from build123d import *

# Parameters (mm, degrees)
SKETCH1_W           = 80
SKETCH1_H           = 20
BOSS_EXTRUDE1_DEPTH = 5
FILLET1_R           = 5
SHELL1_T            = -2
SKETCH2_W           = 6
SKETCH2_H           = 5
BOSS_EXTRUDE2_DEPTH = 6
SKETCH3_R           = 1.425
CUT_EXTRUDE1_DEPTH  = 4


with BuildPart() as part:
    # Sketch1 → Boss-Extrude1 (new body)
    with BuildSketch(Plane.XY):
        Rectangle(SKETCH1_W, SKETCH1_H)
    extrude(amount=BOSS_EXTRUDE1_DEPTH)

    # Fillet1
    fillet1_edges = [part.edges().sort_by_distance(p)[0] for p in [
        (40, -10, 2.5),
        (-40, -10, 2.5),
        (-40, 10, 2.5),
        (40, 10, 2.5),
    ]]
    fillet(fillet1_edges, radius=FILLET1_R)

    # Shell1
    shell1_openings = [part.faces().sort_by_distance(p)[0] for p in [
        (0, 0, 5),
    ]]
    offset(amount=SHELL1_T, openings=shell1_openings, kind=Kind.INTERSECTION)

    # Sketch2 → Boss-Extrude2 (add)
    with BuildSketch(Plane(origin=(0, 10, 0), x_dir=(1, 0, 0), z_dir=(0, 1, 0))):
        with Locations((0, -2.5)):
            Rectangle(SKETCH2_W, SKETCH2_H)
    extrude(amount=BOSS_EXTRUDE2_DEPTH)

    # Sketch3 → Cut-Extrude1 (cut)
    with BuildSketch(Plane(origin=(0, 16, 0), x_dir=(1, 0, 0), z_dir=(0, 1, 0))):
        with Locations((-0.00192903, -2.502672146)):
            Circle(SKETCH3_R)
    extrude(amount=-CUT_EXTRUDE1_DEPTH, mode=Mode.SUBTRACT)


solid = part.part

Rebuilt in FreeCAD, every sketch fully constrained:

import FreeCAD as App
import Part
import Sketcher


def edges_at(feature, points):
    """Names of the edges that pass closest to the given points."""
    edges = feature.Shape.Edges
    near = lambda p: min(range(len(edges)), key=lambda i: edges[i].distToShape(Part.Vertex(*p))[0])
    return sorted({f"Edge{near(p) + 1}" for p in points})


def faces_at(feature, points):
    """Names of the faces that lie closest to the given points."""
    faces = feature.Shape.Faces
    near = lambda p: min(range(len(faces)), key=lambda i: faces[i].distToShape(Part.Vertex(*p))[0])
    return sorted({f"Face{near(p) + 1}" for p in points})


def add_polygon(sketch, points):
    """Adds a closed chain of lines whose ends are joined by coincident constraints."""
    first, n = sketch.GeometryCount, len(points)
    for a, b in zip(points, points[1:] + points[:1]):
        sketch.addGeometry(Part.LineSegment(App.Vector(*a, 0), App.Vector(*b, 0)), False)
    for i in range(n):
        sketch.addConstraint(Sketcher.Constraint("Coincident", first + i, 2, first + (i + 1) % n, 1))

doc = App.newDocument("Part")
body = doc.addObject("PartDesign::Body", "Body")

# Sketch on XY plane
sketch1 = doc.addObject("Sketcher::SketchObject", "Sketch")
body.addObject(sketch1)
sketch1.AttachmentSupport = (doc.XY_Plane, [""])
sketch1.MapMode = "FlatFace"
add_polygon(sketch1, [(-40, 10), (-40, -10), (40, -10), (40, 10)])  # lines 0-3
sketch1.addConstraint([
    Sketcher.Constraint("Vertical", 0),
    Sketcher.Constraint("Horizontal", 1),
    Sketcher.Constraint("Vertical", 2),
    Sketcher.Constraint("Horizontal", 3),
    Sketcher.Constraint("Symmetric", 0, 2, 2, 2, -1, 1),
    Sketcher.Constraint("DistanceX", 1, 1, 1, 2, 80.0),
    Sketcher.Constraint("DistanceY", 0, 2, 0, 1, 20.0),
])
pad1 = doc.addObject("PartDesign::Pad", "Pad")
body.addObject(pad1)
pad1.Profile = sketch1
pad1.Length = 5
doc.recompute()

fillet = doc.addObject("PartDesign::Fillet", "Fillet")
body.addObject(fillet)
fillet.Base = (pad1, edges_at(pad1, [
    (40, -10, 2.5),
    (-40, -10, 2.5),
    (-40, 10, 2.5),
    (40, 10, 2.5),
]))
fillet.Radius = 5
doc.recompute()

thickness = doc.addObject("PartDesign::Thickness", "Thickness")
body.addObject(thickness)
thickness.Base = (fillet, faces_at(fillet, [(0, 0, 5)]))
thickness.Value = 2
thickness.Reversed = True
thickness.Join = "Intersection"

# Sketch on XZ plane
sketch2 = doc.addObject("Sketcher::SketchObject", "Sketch001")
body.addObject(sketch2)
sketch2.AttachmentSupport = (doc.XZ_Plane, [""])
sketch2.MapMode = "FlatFace"
sketch2.AttachmentOffset = App.Placement(App.Vector(0, 0, -10), App.Rotation())
add_polygon(sketch2, [(-3, 0), (-3, 5), (3, 5), (3, 0)])  # lines 0-3
sketch2.addConstraint([
    Sketcher.Constraint("Vertical", 0),
    Sketcher.Constraint("Horizontal", 1),
    Sketcher.Constraint("Vertical", 2),
    Sketcher.Constraint("Horizontal", 3),
    Sketcher.Constraint("Symmetric", 2, 2, 3, 2, -1, 1),
    Sketcher.Constraint("DistanceX", 1, 1, 1, 2, 6.0),
    Sketcher.Constraint("DistanceY", 0, 1, 0, 2, 5.0),
])
pad2 = doc.addObject("PartDesign::Pad", "Pad001")
body.addObject(pad2)
pad2.Profile = sketch2
pad2.Length = 6
pad2.Reversed = True

# Sketch on XZ plane
sketch3 = doc.addObject("Sketcher::SketchObject", "Sketch002")
body.addObject(sketch3)
sketch3.AttachmentSupport = (doc.XZ_Plane, [""])
sketch3.MapMode = "FlatFace"
sketch3.AttachmentOffset = App.Placement(App.Vector(0, 0, -16), App.Rotation())
sketch3.addGeometry(Part.Circle(App.Vector(-0.001929, 2.502672, 0), App.Vector(0, 0, 1), 1.425), False)
sketch3.addConstraint([
    Sketcher.Constraint("Diameter", 0, 2.85),
    Sketcher.Constraint("DistanceX", 0, 3, -1, 1, 0.001929),
    Sketcher.Constraint("DistanceY", -1, 1, 0, 3, 2.502672),
])
pocket1 = doc.addObject("PartDesign::Pocket", "Pocket")
body.addObject(pocket1)
pocket1.Profile = sketch3
pocket1.Length = 4
pocket1.Reversed = True

doc.recompute()
